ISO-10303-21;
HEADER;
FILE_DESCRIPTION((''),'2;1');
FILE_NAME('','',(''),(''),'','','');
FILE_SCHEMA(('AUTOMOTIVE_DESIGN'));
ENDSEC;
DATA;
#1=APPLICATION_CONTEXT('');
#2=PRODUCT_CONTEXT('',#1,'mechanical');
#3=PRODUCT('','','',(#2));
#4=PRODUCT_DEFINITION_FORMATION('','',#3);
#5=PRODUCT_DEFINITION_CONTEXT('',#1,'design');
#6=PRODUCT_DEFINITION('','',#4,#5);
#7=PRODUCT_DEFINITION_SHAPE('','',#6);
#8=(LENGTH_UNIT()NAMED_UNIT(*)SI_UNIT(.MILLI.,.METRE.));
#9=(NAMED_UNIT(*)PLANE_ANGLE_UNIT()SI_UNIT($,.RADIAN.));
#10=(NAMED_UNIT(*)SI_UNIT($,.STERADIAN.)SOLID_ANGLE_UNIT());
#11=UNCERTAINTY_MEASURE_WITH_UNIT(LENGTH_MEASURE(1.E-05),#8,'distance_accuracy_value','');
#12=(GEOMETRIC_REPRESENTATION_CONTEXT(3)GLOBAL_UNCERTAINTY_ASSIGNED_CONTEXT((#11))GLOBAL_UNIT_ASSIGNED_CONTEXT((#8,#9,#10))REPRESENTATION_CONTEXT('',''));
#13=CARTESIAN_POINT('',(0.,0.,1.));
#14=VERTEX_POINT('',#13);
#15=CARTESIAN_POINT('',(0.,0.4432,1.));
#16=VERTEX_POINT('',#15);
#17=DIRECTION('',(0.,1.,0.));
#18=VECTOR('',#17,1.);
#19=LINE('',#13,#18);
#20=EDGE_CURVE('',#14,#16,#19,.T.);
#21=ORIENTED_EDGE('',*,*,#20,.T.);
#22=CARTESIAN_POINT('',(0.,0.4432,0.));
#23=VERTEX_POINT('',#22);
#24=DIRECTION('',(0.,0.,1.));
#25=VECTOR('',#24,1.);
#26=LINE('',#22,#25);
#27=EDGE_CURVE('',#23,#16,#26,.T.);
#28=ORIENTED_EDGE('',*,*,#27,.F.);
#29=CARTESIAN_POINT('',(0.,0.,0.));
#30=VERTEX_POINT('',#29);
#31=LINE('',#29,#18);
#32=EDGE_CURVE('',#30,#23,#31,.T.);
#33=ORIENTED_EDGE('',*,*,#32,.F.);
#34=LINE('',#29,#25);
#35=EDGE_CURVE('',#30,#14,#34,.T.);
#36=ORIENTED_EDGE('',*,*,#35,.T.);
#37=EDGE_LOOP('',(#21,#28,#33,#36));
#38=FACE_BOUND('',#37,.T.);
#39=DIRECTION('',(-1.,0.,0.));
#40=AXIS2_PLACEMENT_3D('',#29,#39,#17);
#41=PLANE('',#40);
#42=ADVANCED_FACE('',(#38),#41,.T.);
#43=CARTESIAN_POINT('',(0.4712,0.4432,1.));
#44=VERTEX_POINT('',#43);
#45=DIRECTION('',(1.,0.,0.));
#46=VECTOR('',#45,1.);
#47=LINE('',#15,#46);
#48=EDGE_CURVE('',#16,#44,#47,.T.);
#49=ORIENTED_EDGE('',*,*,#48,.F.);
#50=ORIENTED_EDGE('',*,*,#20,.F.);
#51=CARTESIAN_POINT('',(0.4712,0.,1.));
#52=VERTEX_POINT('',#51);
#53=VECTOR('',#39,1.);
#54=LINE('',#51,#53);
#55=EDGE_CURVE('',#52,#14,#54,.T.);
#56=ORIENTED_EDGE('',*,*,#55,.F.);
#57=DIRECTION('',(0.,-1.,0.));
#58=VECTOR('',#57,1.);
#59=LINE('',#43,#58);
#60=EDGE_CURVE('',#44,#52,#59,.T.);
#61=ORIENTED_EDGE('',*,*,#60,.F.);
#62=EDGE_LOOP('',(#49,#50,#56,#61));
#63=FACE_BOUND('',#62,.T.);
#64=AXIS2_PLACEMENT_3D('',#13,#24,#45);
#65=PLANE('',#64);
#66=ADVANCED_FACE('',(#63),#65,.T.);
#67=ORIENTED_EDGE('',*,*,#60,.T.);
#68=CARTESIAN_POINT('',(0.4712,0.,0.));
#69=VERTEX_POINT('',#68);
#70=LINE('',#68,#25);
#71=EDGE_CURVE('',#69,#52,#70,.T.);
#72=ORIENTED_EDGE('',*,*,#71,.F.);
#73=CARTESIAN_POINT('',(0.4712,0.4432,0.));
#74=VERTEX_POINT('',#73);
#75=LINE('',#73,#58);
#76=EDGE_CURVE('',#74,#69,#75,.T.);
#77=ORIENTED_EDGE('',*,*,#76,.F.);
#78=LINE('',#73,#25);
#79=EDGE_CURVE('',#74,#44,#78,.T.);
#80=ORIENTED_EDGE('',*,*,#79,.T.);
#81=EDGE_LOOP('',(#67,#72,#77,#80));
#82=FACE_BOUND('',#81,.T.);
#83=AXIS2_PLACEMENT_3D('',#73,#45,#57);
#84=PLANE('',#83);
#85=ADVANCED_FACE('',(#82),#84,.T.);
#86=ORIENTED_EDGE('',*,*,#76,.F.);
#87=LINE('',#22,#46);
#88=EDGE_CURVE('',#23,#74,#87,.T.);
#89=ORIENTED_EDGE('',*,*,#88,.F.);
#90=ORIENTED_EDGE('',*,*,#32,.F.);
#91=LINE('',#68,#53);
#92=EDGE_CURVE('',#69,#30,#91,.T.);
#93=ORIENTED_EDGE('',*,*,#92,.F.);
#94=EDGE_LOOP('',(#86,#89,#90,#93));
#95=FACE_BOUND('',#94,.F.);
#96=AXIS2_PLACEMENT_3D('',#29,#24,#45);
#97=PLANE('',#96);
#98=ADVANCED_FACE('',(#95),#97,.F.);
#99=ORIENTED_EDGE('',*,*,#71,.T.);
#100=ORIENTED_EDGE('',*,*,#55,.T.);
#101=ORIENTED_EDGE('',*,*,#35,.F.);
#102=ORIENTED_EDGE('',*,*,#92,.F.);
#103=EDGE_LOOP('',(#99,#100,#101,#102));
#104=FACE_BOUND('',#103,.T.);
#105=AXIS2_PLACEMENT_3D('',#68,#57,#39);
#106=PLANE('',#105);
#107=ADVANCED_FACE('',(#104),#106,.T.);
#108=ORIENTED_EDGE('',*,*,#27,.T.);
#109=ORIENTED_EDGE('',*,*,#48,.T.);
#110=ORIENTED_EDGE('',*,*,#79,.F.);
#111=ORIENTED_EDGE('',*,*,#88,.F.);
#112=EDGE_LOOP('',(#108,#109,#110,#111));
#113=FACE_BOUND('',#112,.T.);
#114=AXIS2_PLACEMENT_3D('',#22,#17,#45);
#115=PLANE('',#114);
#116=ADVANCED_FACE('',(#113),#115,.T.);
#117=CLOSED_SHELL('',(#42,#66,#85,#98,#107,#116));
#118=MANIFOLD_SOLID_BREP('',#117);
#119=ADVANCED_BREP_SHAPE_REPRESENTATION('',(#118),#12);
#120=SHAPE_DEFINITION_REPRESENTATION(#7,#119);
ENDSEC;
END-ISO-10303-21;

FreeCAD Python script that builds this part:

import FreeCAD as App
import Part
import Sketcher
from FreeCAD import Vector
Q = App.Units.Quantity


def add_polygon(sketch, points):
    """Adds a closed chain of lines whose ends are joined by coincident constraints."""
    first, n = sketch.GeometryCount, len(points)
    for a, b in zip(points, points[1:] + points[:1]):
        sketch.addGeometry(Part.LineSegment(App.Vector(*a, 0), App.Vector(*b, 0)), False)
    for i in range(n):
        sketch.addConstraint(Sketcher.Constraint("Coincident", first + i, 2, first + (i + 1) % n, 1))

doc = App.newDocument("Part")
body = doc.addObject("PartDesign::Body", "Body")

# Sketch on XY plane
sketch1 = doc.addObject("Sketcher::SketchObject", "Sketch")
body.addObject(sketch1)
sketch1.AttachmentSupport = (doc.XY_Plane, [""])
sketch1.MapMode = "FlatFace"
add_polygon(sketch1, [(0.4712, 0.4432), (0, 0.4432), (0, 0), (0.4712, 0)])  # lines 0-3
sketch1.addConstraint(Sketcher.Constraint("Horizontal", 0))
sketch1.addConstraint(Sketcher.Constraint("Vertical", 1))
sketch1.addConstraint(Sketcher.Constraint("Horizontal", 2))
sketch1.addConstraint(Sketcher.Constraint("Vertical", 3))
sketch1.addConstraint(Sketcher.Constraint("Coincident", 1, 2, -1, 1))
sketch1.addConstraint(Sketcher.Constraint("DistanceX", 0, 2, 0, 1, Q("0.4712 mm")))
sketch1.addConstraint(Sketcher.Constraint("DistanceY", 1, 2, 1, 1, Q("0.4432 mm")))
pad1 = doc.addObject("PartDesign::Pad", "Pad")
body.addObject(pad1)
pad1.Profile = sketch1
pad1.Length = 1

doc.recompute()
